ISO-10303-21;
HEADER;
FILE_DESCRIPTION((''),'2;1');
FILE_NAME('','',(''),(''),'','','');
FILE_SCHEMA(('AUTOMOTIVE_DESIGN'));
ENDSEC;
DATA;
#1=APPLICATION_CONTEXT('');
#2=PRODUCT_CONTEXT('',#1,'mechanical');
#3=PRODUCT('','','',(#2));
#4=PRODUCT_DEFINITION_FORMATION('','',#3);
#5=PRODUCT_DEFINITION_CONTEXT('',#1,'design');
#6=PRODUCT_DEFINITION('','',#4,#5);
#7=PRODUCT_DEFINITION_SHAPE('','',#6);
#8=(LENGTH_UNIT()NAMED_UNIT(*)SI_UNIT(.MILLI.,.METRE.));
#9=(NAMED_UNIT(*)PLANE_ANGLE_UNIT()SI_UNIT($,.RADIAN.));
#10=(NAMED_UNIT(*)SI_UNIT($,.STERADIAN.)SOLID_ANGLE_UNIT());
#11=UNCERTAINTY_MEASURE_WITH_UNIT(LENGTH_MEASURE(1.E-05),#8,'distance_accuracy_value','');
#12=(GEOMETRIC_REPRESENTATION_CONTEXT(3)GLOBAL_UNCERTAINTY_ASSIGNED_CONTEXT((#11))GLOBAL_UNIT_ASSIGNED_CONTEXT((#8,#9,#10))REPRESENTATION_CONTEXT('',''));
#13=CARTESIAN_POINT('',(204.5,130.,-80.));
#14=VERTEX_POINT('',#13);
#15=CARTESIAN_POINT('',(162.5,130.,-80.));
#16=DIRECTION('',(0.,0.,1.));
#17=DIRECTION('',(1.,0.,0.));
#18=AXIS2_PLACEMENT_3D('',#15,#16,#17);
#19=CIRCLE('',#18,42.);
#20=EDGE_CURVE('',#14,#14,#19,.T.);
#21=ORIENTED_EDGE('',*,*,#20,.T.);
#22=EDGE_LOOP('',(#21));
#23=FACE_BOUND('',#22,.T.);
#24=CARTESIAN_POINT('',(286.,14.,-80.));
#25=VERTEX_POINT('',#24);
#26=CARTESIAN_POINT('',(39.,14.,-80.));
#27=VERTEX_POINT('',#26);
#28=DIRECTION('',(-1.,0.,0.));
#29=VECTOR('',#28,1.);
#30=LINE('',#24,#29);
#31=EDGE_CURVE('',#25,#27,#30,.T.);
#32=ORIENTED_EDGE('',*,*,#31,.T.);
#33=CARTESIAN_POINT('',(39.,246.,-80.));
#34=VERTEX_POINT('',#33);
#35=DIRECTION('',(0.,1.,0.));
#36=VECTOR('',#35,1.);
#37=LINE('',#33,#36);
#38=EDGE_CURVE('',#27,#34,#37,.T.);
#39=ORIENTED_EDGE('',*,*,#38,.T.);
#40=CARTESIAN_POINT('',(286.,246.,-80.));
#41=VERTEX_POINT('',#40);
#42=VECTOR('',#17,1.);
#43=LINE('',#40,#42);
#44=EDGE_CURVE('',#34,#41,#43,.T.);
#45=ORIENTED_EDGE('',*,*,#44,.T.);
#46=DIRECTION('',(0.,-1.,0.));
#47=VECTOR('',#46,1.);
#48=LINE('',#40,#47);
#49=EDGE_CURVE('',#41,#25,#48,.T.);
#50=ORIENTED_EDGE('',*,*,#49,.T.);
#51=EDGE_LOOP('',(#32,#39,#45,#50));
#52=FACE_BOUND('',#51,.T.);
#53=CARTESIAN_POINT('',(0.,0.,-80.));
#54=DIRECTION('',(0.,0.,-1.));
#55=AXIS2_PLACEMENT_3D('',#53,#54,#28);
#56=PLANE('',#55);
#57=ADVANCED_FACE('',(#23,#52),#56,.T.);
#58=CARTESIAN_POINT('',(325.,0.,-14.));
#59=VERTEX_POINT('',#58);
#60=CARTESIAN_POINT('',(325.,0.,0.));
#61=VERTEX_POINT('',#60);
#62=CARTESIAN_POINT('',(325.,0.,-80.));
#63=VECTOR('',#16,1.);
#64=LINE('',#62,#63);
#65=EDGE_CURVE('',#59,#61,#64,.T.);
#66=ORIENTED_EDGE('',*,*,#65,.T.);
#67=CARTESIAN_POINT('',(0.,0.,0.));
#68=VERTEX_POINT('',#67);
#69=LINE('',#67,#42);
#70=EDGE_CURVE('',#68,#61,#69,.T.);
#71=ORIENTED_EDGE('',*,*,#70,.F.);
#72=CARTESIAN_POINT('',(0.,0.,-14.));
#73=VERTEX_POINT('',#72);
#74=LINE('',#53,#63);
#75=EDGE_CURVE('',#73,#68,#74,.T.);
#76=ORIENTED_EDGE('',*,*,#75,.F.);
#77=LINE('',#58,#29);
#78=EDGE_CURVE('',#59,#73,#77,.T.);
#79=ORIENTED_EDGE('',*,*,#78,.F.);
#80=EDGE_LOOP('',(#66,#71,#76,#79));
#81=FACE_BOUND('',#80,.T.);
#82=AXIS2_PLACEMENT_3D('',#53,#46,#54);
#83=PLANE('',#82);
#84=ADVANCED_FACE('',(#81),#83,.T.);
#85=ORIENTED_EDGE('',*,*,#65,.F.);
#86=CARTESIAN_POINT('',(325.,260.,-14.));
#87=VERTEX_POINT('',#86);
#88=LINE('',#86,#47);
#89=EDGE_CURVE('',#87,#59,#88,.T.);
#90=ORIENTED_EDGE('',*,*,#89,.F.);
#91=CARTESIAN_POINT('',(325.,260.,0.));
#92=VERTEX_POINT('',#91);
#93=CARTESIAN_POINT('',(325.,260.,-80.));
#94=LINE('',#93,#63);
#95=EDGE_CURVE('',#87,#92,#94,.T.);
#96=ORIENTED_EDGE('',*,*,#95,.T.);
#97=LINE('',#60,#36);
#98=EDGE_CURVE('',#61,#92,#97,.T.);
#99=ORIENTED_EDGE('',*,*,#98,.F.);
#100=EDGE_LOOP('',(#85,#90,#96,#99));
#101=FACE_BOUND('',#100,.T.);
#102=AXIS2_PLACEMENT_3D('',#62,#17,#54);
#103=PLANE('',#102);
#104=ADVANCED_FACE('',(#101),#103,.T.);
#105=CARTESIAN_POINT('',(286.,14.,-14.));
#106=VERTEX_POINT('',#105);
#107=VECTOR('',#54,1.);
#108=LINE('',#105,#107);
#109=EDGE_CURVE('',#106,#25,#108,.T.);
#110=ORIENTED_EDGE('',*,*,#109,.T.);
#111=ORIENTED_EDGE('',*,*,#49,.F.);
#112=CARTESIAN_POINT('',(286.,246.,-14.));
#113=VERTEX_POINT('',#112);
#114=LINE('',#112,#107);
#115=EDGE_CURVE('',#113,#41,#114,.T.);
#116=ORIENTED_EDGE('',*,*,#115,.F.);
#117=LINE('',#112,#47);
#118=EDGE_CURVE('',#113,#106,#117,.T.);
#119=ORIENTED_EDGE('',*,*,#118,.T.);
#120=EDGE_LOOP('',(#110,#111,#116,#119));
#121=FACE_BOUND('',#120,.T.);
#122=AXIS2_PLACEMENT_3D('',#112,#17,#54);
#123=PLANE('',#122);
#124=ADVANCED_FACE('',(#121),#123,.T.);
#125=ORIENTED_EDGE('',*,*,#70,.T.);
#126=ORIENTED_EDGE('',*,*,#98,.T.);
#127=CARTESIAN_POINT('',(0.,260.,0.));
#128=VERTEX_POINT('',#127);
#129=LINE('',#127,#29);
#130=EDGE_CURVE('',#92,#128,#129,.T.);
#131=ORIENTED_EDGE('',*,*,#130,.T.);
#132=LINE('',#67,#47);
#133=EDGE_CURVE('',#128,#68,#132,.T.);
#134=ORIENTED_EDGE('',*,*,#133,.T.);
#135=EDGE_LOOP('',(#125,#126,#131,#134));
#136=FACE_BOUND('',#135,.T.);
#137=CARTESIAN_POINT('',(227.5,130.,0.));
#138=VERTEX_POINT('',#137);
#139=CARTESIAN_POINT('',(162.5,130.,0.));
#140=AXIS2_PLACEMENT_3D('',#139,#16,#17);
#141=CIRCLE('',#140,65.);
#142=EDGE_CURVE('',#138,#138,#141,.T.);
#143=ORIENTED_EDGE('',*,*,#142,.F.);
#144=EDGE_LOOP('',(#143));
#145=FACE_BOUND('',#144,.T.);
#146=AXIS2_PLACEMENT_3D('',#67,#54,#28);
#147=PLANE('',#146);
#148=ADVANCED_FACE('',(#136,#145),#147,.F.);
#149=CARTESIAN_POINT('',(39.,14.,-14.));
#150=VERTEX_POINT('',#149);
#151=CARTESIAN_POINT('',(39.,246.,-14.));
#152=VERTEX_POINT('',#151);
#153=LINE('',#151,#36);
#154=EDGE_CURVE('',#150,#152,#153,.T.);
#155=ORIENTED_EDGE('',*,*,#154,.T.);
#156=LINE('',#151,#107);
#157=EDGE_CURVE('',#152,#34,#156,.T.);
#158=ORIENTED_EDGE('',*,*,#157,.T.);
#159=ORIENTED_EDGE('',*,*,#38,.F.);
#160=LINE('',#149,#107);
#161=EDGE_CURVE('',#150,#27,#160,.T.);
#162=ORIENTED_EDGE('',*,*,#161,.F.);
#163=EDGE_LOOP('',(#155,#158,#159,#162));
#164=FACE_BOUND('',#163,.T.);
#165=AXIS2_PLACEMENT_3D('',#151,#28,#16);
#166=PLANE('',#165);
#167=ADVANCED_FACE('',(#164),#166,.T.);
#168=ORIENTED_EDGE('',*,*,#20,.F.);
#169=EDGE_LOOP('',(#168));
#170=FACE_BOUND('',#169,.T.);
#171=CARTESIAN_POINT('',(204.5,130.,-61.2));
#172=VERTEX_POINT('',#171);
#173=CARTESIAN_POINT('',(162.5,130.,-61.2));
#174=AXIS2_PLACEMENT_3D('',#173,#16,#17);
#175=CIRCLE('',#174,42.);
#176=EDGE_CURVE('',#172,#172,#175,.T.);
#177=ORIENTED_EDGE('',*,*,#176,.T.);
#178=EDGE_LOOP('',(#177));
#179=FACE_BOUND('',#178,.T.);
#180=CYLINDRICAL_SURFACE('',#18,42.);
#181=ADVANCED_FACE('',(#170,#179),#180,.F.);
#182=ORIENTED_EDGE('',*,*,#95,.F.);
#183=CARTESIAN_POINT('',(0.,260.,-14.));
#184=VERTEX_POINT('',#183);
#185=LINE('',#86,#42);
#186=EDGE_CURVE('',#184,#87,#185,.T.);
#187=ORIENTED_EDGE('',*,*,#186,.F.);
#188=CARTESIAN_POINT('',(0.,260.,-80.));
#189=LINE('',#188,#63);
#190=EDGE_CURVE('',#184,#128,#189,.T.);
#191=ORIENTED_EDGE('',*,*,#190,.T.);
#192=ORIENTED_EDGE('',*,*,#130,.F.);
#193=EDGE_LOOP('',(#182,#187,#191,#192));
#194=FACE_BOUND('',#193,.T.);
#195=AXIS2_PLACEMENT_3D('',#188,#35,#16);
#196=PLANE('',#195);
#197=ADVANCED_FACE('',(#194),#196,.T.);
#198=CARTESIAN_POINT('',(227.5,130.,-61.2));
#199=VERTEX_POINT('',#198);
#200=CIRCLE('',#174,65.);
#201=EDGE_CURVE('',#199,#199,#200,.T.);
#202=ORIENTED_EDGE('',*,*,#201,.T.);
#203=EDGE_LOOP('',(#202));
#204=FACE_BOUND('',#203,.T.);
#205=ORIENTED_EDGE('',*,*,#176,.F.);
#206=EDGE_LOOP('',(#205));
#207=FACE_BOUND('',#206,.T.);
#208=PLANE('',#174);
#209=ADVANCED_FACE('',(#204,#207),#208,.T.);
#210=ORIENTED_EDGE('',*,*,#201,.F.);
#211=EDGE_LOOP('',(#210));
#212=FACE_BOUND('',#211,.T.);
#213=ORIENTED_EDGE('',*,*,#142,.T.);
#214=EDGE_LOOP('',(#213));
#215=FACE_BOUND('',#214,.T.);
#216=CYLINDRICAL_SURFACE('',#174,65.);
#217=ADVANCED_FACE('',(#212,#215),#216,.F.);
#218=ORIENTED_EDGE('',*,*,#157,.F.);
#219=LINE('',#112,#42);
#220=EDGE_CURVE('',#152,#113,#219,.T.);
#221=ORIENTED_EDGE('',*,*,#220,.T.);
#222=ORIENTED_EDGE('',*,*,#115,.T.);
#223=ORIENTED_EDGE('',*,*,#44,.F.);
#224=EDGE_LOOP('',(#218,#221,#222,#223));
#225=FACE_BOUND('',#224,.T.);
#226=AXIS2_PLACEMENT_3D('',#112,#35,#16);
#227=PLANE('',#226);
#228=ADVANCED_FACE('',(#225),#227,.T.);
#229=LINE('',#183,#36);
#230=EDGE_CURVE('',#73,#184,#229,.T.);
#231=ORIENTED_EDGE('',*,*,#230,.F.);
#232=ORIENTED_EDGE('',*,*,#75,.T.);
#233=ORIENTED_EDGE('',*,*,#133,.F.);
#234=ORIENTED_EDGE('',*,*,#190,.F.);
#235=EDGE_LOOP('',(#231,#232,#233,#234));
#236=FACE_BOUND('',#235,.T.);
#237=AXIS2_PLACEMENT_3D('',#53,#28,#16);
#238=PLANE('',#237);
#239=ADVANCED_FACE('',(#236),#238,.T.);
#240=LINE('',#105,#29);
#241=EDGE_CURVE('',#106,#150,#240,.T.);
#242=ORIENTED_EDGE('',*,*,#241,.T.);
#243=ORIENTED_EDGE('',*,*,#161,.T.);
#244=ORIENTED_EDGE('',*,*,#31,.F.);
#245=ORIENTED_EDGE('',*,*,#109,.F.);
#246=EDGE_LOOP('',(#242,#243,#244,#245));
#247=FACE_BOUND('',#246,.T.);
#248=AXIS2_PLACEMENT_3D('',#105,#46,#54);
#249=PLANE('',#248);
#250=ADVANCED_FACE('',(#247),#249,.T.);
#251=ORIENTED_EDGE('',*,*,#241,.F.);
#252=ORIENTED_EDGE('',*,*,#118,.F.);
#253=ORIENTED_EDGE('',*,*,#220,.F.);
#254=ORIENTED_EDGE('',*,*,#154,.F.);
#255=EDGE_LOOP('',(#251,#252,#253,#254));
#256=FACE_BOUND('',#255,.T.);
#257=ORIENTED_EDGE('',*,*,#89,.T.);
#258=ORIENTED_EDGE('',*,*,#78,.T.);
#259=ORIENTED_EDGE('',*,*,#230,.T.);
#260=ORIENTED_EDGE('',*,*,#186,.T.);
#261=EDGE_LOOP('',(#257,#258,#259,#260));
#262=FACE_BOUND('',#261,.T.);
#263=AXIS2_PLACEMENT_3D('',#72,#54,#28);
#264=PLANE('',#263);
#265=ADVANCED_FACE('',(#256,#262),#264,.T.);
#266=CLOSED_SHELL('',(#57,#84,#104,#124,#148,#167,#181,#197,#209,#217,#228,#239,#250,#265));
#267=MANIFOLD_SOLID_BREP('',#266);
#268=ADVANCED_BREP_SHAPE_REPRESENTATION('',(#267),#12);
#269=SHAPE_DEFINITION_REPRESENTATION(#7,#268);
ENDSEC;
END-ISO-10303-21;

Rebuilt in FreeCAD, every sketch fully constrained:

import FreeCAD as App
import Part
import Sketcher
from FreeCAD import Vector


def add_polygon(sketch, points):
    """Adds a closed chain of lines whose ends are joined by coincident constraints."""
    first, n = sketch.GeometryCount, len(points)
    for a, b in zip(points, points[1:] + points[:1]):
        sketch.addGeometry(Part.LineSegment(App.Vector(*a, 0), App.Vector(*b, 0)), False)
    for i in range(n):
        sketch.addConstraint(Sketcher.Constraint("Coincident", first + i, 2, first + (i + 1) % n, 1))

doc = App.newDocument("Part")
params = doc.addObject("Spreadsheet::Sheet", "Params")
for row, (alias, value) in enumerate([
    ("sketch1_width", "325 mm"),
    ("sketch1_height", "260 mm"),
    ("pad1_length", "80 mm"),
    ("sketch2_diameter", "130 mm"),
    ("pocket1_length", "61.2 mm"),
    ("sketch3_diameter", "84 mm"),
    ("sketch4_width", "325 mm"),
    ("sketch4_width2", "247 mm"),
    ("sketch4_height", "260 mm"),
    ("sketch4_height2", "232 mm"),
    ("pocket3_length", "66 mm"),
], start=1):
    params.set(f"A{row}", alias)
    params.set(f"B{row}", "=" + value)
    params.setAlias(f"B{row}", alias)

body = doc.addObject("PartDesign::Body", "Body")

# Sketch on XY plane
sketch1 = body.newObject("Sketcher::SketchObject", "Sketch")
sketch1.AttachmentSupport = (doc.getObject("XY_Plane"), [""])
sketch1.MapMode = "FlatFace"
add_polygon(sketch1, [(0, 260), (0, 0), (325, 0), (325, 260)])  # lines 0-3
sketch1.addConstraint([
    Sketcher.Constraint("Vertical", 0),
    Sketcher.Constraint("Horizontal", 1),
    Sketcher.Constraint("Vertical", 2),
    Sketcher.Constraint("Horizontal", 3),
    Sketcher.Constraint("Coincident", 0, 2, -1, 1),
    Sketcher.Constraint("DistanceX", 1, 1, 1, 2, 325.0),
    Sketcher.Constraint("DistanceY", 0, 2, 0, 1, 260.0),
])
sketch1.setExpression("Constraints[9]", "Params.sketch1_width")
sketch1.setExpression("Constraints[10]", "Params.sketch1_height")
pad1 = body.newObject("PartDesign::Pad", "Pad")
pad1.Profile = sketch1
pad1.setExpression("Length", "Params.pad1_length")
pad1.Reversed = True

# Sketch on XY plane
sketch2 = body.newObject("Sketcher::SketchObject", "Sketch001")
sketch2.AttachmentSupport = (doc.getObject("XY_Plane"), [""])
sketch2.MapMode = "FlatFace"
sketch2.addGeometry(Part.Circle(Vector(162, 130, 0), Vector(0, 0, 1), 65), False)
sketch2.addConstraint([
    Sketcher.Constraint("Diameter", 0, 130.0),
    Sketcher.Constraint("DistanceY", -1, 1, 0, 3, 130.0),
    Sketcher.Constraint("DistanceX", -1, 1, 0, 3, 162.5),
])
sketch2.setExpression("Constraints[0]", "Params.sketch2_diameter")
pocket1 = body.newObject("PartDesign::Pocket", "Pocket")
pocket1.Profile = sketch2
pocket1.setExpression("Length", "Params.pocket1_length")

# Sketch on XY plane
sketch3 = body.newObject("Sketcher::SketchObject", "Sketch002")
sketch3.AttachmentSupport = (doc.getObject("XY_Plane"), [""])
sketch3.MapMode = "FlatFace"
sketch3.addGeometry(Part.Circle(Vector(162, 130, 0), Vector(0, 0, 1), 42), False)
sketch3.addConstraint([
    Sketcher.Constraint("Diameter", 0, 84.0),
    Sketcher.Constraint("DistanceY", -1, 1, 0, 3, 130.0),
    Sketcher.Constraint("DistanceX", -1, 1, 0, 3, 162.5),
])
sketch3.setExpression("Constraints[0]", "Params.sketch3_diameter")
pocket2 = body.newObject("PartDesign::Pocket", "Pocket001")
pocket2.Profile = sketch3
pocket2.Type = "ThroughAll"

# Sketch on XY plane
sketch4 = body.newObject("Sketcher::SketchObject", "Sketch003")
sketch4.AttachmentSupport = (doc.getObject("XY_Plane"), [""])
sketch4.MapMode = "FlatFace"
sketch4.AttachmentOffset = App.Placement(Vector(0, 0, -80), App.Rotation())
add_polygon(sketch4, [(325, 260), (325, 0), (0, 0), (0, 260)])  # lines 0-3
add_polygon(sketch4, [(39, 14), (286, 14), (286, 246), (39, 246)])  # lines 4-7
sketch4.addConstraint([
    Sketcher.Constraint("Vertical", 0),
    Sketcher.Constraint("Horizontal", 1),
    Sketcher.Constraint("Vertical", 2),
    Sketcher.Constraint("Horizontal", 3),
    Sketcher.Constraint("Horizontal", 4),
    Sketcher.Constraint("Vertical", 5),
    Sketcher.Constraint("Horizontal", 6),
    Sketcher.Constraint("Vertical", 7),
    Sketcher.Constraint("Coincident", 1, 2, -1, 1),
    Sketcher.Constraint("DistanceX", 1, 2, 1, 1, 325.0),
    Sketcher.Constraint("DistanceX", 4, 1, 4, 2, 247.0),
    Sketcher.Constraint("DistanceY", 0, 2, 0, 1, 260.0),
    Sketcher.Constraint("DistanceY", 5, 1, 5, 2, 232.0),
    Sketcher.Constraint("DistanceX", -1, 1, 4, 2, 286.0),
    Sketcher.Constraint("DistanceY", -1, 1, 4, 2, 14.0),
])
sketch4.setExpression("Constraints[17]", "Params.sketch4_width")
sketch4.setExpression("Constraints[18]", "Params.sketch4_width2")
sketch4.setExpression("Constraints[19]", "Params.sketch4_height")
sketch4.setExpression("Constraints[20]", "Params.sketch4_height2")
pocket3 = body.newObject("PartDesign::Pocket", "Pocket002")
pocket3.Profile = sketch4
pocket3.setExpression("Length", "Params.pocket3_length")
pocket3.Reversed = True

doc.recompute()
